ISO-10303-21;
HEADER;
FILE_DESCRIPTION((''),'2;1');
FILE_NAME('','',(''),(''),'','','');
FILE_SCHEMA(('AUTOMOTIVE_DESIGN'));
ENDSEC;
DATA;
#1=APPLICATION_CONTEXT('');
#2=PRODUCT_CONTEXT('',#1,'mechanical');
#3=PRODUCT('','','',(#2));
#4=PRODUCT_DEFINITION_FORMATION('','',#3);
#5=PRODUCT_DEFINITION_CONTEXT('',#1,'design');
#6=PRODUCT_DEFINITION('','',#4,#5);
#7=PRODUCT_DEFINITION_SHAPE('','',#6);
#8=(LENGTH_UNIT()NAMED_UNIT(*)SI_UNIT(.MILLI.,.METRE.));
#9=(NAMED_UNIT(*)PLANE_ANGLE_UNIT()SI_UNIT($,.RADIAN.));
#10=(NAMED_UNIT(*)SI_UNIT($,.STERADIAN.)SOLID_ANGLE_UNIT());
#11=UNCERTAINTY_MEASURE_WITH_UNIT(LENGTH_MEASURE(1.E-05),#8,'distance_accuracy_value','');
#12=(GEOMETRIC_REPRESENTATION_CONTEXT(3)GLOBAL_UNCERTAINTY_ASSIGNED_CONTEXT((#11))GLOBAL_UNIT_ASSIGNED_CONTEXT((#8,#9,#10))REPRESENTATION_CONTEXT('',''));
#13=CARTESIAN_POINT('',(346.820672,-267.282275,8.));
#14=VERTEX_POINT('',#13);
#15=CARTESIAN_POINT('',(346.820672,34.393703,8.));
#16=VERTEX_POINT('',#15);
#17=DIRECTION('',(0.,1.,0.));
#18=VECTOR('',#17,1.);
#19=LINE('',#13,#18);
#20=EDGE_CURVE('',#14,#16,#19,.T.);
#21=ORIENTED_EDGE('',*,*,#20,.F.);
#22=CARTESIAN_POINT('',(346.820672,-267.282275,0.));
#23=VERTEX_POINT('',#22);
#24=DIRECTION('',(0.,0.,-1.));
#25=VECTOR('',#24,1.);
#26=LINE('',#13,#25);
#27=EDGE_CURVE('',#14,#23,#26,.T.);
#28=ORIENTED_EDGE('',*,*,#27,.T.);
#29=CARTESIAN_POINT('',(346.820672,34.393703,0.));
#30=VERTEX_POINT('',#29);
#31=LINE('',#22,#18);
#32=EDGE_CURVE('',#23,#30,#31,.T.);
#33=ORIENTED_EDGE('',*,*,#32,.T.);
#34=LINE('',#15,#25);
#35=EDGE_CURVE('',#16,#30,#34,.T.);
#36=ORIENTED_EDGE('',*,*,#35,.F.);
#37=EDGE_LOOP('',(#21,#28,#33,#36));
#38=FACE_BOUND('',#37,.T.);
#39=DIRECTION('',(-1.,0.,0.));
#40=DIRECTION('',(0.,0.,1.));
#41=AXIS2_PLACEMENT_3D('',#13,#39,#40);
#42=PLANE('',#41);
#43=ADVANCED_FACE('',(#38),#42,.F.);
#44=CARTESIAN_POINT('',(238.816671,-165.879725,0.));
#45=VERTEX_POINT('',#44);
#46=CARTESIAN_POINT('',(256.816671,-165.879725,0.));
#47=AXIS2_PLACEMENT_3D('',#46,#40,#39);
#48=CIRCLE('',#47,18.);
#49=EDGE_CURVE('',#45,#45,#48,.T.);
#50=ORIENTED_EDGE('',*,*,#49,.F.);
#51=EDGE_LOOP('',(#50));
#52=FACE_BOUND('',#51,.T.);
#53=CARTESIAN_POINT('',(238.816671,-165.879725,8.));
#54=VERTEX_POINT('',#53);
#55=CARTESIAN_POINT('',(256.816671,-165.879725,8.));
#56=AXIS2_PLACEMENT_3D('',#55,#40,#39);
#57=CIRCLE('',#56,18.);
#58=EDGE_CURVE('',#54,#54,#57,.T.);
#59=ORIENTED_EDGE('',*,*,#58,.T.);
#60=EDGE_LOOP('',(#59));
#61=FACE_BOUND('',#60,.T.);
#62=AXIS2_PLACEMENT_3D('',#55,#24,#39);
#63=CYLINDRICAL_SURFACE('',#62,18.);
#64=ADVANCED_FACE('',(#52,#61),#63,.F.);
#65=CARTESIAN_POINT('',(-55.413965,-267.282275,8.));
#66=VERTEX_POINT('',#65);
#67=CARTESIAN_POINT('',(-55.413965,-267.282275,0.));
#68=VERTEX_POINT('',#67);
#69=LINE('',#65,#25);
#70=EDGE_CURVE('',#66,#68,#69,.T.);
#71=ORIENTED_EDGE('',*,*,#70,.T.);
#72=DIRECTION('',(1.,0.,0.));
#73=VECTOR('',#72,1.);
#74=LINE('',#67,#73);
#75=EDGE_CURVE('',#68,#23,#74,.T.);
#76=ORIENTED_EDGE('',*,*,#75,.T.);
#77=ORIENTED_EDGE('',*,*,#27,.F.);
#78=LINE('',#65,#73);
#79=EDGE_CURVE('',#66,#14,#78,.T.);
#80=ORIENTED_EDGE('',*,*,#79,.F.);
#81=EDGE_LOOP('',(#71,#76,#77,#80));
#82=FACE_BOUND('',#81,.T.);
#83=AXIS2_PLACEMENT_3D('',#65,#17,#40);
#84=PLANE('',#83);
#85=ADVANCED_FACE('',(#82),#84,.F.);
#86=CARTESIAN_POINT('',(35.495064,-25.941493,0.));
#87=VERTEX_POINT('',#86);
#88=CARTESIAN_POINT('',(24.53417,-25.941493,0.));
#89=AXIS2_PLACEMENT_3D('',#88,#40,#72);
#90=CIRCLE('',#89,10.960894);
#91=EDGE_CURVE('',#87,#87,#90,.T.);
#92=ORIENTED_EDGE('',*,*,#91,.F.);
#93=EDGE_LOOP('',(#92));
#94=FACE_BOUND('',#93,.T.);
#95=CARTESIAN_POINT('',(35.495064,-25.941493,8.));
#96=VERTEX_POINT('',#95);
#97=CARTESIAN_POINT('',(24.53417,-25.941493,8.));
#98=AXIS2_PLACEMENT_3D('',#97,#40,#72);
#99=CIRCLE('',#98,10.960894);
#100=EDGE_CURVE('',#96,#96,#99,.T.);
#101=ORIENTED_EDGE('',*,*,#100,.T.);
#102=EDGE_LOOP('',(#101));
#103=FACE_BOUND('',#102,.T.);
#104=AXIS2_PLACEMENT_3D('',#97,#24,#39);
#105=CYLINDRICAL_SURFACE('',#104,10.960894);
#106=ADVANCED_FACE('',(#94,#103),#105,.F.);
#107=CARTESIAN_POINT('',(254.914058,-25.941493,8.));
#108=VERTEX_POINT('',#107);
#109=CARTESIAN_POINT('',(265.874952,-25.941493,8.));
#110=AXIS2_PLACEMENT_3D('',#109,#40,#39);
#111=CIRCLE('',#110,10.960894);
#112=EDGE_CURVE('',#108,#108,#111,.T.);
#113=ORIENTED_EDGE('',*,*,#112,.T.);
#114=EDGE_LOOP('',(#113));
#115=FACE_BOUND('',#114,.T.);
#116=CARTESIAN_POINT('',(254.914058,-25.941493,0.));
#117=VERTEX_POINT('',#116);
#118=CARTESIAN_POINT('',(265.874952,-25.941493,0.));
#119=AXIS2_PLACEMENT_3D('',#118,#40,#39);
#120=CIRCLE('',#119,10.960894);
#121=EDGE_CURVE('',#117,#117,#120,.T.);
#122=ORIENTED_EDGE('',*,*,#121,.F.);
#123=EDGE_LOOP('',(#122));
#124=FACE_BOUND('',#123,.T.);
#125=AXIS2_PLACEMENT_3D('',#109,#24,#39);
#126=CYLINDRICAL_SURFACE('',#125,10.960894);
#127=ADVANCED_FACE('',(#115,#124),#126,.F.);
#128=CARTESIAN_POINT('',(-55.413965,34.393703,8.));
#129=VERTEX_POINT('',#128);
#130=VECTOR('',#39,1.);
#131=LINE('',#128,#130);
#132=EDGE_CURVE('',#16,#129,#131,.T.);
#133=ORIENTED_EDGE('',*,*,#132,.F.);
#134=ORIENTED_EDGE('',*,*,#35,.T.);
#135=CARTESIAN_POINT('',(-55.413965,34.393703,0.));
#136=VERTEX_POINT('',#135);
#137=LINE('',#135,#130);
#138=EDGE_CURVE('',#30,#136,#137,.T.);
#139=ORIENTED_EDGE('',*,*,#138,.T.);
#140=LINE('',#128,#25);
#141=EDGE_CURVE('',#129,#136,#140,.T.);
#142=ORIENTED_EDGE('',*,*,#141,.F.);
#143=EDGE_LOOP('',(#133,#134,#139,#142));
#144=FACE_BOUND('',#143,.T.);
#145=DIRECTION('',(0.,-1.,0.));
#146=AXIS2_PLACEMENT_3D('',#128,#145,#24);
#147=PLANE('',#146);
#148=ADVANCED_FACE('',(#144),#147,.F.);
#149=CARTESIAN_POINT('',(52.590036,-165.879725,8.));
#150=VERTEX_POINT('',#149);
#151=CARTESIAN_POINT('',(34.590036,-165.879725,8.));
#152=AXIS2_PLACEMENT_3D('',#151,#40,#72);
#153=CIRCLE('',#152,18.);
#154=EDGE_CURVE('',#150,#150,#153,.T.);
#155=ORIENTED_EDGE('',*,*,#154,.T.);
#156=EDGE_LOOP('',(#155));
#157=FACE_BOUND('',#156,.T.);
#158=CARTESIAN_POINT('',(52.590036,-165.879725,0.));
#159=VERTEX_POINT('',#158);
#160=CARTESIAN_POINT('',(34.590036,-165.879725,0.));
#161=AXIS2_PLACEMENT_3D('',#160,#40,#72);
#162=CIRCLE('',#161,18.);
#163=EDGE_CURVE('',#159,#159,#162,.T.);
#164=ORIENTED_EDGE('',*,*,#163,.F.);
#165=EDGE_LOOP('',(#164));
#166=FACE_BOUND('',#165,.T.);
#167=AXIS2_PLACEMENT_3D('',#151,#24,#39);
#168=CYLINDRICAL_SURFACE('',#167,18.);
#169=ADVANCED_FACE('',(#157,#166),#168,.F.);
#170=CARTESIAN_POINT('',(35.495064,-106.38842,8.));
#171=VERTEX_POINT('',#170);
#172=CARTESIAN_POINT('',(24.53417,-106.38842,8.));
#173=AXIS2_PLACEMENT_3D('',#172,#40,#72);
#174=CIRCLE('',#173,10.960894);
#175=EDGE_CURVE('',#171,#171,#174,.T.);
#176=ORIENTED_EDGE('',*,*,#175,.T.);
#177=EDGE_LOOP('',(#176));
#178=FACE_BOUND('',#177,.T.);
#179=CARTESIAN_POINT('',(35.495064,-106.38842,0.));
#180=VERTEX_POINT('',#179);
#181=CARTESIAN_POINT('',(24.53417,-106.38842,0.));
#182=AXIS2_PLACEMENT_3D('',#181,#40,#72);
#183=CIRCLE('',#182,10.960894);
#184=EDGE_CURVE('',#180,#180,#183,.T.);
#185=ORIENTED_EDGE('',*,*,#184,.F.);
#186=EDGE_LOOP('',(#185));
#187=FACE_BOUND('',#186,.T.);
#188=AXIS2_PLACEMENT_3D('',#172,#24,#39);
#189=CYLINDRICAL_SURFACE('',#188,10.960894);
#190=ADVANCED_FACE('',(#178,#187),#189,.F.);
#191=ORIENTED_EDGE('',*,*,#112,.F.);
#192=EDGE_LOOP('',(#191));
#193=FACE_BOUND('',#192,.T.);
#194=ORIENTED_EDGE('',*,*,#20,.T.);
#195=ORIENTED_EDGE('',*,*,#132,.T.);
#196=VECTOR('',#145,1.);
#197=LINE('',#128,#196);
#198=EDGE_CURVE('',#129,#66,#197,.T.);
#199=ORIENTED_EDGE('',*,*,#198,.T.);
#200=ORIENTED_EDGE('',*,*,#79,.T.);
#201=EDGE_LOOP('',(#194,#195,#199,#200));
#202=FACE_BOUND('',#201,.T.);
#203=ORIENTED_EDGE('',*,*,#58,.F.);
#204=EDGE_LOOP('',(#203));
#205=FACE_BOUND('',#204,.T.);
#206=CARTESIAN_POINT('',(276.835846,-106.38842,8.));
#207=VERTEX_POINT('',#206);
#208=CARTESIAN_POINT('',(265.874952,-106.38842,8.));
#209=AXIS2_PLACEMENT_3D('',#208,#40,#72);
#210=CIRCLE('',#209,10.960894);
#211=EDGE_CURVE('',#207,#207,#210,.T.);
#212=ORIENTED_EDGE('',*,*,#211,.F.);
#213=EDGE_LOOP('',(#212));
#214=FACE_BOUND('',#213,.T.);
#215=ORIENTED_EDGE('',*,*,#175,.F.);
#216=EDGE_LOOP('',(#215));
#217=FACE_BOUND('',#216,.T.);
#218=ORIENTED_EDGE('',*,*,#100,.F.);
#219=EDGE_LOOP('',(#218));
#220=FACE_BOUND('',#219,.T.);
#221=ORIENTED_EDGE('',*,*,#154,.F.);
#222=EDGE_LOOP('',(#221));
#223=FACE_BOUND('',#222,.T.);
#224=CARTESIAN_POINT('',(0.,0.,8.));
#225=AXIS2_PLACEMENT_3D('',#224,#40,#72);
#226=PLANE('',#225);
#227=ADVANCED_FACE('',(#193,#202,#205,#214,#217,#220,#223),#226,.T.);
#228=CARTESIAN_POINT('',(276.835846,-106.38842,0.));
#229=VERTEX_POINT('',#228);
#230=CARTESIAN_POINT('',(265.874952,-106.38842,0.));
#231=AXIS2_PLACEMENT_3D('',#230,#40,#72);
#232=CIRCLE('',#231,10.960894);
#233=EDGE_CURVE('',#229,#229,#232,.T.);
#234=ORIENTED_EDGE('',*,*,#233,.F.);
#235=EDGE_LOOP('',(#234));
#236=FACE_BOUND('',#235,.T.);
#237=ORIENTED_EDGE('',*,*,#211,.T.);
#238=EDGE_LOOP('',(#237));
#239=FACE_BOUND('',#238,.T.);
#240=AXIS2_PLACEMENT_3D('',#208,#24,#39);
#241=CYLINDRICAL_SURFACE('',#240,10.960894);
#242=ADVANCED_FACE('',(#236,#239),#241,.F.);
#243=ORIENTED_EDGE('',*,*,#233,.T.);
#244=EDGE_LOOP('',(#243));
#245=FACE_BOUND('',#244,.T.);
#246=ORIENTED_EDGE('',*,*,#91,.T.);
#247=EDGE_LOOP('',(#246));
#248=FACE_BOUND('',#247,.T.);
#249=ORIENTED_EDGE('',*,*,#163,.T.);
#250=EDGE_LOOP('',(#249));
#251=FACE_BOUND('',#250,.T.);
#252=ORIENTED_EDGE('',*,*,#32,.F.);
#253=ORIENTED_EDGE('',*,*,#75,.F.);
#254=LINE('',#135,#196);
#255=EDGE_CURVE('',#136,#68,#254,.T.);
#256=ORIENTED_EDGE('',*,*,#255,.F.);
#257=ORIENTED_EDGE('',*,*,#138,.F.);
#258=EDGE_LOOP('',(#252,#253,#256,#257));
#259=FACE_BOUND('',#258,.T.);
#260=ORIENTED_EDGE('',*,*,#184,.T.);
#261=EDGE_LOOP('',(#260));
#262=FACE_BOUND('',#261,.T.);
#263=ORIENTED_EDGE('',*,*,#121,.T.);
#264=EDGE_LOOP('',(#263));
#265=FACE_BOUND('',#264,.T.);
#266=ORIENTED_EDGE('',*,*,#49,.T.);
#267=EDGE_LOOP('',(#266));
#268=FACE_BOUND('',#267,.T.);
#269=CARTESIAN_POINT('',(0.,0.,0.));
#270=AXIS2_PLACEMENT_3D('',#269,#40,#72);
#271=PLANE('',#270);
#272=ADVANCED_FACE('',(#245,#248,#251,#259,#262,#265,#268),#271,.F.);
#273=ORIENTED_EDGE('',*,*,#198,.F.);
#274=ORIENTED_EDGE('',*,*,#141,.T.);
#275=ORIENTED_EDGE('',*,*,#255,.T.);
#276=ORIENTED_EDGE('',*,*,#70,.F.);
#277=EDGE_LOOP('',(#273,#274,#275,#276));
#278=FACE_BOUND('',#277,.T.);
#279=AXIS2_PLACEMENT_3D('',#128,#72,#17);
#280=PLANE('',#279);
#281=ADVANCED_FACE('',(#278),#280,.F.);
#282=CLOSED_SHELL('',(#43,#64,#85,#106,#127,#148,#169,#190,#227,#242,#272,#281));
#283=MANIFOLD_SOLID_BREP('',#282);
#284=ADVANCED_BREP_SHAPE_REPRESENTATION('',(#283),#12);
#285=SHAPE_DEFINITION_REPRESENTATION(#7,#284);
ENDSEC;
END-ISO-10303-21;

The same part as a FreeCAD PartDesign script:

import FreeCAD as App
import Part
import Sketcher

V = App.Vector
Q = App.Units.Quantity


def add_polygon(sketch, points):
    """Adds a closed chain of lines whose ends are joined by coincident constraints."""
    first, n = sketch.GeometryCount, len(points)
    for a, b in zip(points, points[1:] + points[:1]):
        sketch.addGeometry(Part.LineSegment(App.Vector(*a, 0), App.Vector(*b, 0)), False)
    for i in range(n):
        sketch.addConstraint(Sketcher.Constraint("Coincident", first + i, 2, first + (i + 1) % n, 1))

doc = App.newDocument("Part")
params = doc.addObject("Spreadsheet::Sheet", "Params")
for row, (alias, value) in enumerate([
    ("sketch1_diameter", "36 mm"),
    ("pad1_length", "8 mm"),
], start=1):
    params.set(f"A{row}", alias)
    params.set(f"B{row}", "=" + value)
    params.setAlias(f"B{row}", alias)

body = doc.addObject("PartDesign::Body", "Body")

# Sketch on XY plane
sketch1 = doc.addObject("Sketcher::SketchObject", "Sketch")
body.addObject(sketch1)
sketch1.AttachmentSupport = (doc.XY_Plane, [""])
sketch1.MapMode = "FlatFace"
add_polygon(sketch1, [(-55, 34), (-55, -267), (347, -267), (347, 34)])  # lines 0-3
sketch1.addGeometry(Part.Circle(V(35, -166, 0), V(0, 0, 1), 18), False)  # 4
sketch1.addGeometry(Part.Circle(V(25, -106, 0), V(0, 0, 1), 11), False)  # 5
sketch1.addGeometry(Part.Circle(V(257, -166, 0), V(0, 0, 1), 18), False)  # 6
sketch1.addGeometry(Part.Circle(V(266, -106, 0), V(0, 0, 1), 11), False)  # 7
sketch1.addGeometry(Part.Circle(V(25, -26, 0), V(0, 0, 1), 11), False)  # 8
sketch1.addGeometry(Part.Circle(V(266, -26, 0), V(0, 0, 1), 11), False)  # 9
sketch1.addConstraint([
    Sketcher.Constraint("Vertical", 0),
    Sketcher.Constraint("Horizontal", 1),
    Sketcher.Constraint("Vertical", 2),
    Sketcher.Constraint("Horizontal", 3),
    Sketcher.Constraint("Equal", 4, 6),
    Sketcher.Constraint("Equal", 5, 7),
    Sketcher.Constraint("Equal", 7, 8),
    Sketcher.Constraint("Equal", 8, 9),
    Sketcher.Constraint("Horizontal", 4, 3, 6, 3),
    Sketcher.Constraint("Horizontal", 5, 3, 7, 3),
    Sketcher.Constraint("Horizontal", 8, 3, 9, 3),
    Sketcher.Constraint("Vertical", 5, 3, 8, 3),
    Sketcher.Constraint("Vertical", 7, 3, 9, 3),
    Sketcher.Constraint("Diameter", 4, Q("36 mm")),
    Sketcher.Constraint("Diameter", 5, Q("21.921788 mm")),
    Sketcher.Constraint("DistanceX", 0, 2, 4, 3, Q("90.004001 mm")),
    Sketcher.Constraint("DistanceX", 6, 3, 1, 2, Q("90.004001 mm")),
    Sketcher.Constraint("DistanceX", 5, 3, 6, 3, Q("232.282501 mm")),
    Sketcher.Constraint("DistanceX", 1, 1, 1, 2, Q("402.234637 mm")),
    Sketcher.Constraint("DistanceY", 0, 2, 0, 1, Q("301.675978 mm")),
    Sketcher.Constraint("DistanceX", -1, 1, 5, 3, Q("24.53417 mm")),
    Sketcher.Constraint("DistanceY", 5, 3, -1, 1, Q("106.38842 mm")),
    Sketcher.Constraint("DistanceX", 6, 3, 7, 3, Q("9.058281 mm")),
    Sketcher.Constraint("DistanceY", 0, 2, 4, 3, Q("101.40255 mm")),
    Sketcher.Constraint("DistanceY", 4, 3, -1, 1, Q("165.879725 mm")),
    Sketcher.Constraint("DistanceY", 8, 3, -1, 1, Q("25.941493 mm")),
])
sketch1.setExpression("Constraints[17]", "Params.sketch1_diameter")
pad1 = doc.addObject("PartDesign::Pad", "Pad")
body.addObject(pad1)
pad1.Profile = sketch1
pad1.setExpression("Length", "Params.pad1_length")

doc.recompute()
